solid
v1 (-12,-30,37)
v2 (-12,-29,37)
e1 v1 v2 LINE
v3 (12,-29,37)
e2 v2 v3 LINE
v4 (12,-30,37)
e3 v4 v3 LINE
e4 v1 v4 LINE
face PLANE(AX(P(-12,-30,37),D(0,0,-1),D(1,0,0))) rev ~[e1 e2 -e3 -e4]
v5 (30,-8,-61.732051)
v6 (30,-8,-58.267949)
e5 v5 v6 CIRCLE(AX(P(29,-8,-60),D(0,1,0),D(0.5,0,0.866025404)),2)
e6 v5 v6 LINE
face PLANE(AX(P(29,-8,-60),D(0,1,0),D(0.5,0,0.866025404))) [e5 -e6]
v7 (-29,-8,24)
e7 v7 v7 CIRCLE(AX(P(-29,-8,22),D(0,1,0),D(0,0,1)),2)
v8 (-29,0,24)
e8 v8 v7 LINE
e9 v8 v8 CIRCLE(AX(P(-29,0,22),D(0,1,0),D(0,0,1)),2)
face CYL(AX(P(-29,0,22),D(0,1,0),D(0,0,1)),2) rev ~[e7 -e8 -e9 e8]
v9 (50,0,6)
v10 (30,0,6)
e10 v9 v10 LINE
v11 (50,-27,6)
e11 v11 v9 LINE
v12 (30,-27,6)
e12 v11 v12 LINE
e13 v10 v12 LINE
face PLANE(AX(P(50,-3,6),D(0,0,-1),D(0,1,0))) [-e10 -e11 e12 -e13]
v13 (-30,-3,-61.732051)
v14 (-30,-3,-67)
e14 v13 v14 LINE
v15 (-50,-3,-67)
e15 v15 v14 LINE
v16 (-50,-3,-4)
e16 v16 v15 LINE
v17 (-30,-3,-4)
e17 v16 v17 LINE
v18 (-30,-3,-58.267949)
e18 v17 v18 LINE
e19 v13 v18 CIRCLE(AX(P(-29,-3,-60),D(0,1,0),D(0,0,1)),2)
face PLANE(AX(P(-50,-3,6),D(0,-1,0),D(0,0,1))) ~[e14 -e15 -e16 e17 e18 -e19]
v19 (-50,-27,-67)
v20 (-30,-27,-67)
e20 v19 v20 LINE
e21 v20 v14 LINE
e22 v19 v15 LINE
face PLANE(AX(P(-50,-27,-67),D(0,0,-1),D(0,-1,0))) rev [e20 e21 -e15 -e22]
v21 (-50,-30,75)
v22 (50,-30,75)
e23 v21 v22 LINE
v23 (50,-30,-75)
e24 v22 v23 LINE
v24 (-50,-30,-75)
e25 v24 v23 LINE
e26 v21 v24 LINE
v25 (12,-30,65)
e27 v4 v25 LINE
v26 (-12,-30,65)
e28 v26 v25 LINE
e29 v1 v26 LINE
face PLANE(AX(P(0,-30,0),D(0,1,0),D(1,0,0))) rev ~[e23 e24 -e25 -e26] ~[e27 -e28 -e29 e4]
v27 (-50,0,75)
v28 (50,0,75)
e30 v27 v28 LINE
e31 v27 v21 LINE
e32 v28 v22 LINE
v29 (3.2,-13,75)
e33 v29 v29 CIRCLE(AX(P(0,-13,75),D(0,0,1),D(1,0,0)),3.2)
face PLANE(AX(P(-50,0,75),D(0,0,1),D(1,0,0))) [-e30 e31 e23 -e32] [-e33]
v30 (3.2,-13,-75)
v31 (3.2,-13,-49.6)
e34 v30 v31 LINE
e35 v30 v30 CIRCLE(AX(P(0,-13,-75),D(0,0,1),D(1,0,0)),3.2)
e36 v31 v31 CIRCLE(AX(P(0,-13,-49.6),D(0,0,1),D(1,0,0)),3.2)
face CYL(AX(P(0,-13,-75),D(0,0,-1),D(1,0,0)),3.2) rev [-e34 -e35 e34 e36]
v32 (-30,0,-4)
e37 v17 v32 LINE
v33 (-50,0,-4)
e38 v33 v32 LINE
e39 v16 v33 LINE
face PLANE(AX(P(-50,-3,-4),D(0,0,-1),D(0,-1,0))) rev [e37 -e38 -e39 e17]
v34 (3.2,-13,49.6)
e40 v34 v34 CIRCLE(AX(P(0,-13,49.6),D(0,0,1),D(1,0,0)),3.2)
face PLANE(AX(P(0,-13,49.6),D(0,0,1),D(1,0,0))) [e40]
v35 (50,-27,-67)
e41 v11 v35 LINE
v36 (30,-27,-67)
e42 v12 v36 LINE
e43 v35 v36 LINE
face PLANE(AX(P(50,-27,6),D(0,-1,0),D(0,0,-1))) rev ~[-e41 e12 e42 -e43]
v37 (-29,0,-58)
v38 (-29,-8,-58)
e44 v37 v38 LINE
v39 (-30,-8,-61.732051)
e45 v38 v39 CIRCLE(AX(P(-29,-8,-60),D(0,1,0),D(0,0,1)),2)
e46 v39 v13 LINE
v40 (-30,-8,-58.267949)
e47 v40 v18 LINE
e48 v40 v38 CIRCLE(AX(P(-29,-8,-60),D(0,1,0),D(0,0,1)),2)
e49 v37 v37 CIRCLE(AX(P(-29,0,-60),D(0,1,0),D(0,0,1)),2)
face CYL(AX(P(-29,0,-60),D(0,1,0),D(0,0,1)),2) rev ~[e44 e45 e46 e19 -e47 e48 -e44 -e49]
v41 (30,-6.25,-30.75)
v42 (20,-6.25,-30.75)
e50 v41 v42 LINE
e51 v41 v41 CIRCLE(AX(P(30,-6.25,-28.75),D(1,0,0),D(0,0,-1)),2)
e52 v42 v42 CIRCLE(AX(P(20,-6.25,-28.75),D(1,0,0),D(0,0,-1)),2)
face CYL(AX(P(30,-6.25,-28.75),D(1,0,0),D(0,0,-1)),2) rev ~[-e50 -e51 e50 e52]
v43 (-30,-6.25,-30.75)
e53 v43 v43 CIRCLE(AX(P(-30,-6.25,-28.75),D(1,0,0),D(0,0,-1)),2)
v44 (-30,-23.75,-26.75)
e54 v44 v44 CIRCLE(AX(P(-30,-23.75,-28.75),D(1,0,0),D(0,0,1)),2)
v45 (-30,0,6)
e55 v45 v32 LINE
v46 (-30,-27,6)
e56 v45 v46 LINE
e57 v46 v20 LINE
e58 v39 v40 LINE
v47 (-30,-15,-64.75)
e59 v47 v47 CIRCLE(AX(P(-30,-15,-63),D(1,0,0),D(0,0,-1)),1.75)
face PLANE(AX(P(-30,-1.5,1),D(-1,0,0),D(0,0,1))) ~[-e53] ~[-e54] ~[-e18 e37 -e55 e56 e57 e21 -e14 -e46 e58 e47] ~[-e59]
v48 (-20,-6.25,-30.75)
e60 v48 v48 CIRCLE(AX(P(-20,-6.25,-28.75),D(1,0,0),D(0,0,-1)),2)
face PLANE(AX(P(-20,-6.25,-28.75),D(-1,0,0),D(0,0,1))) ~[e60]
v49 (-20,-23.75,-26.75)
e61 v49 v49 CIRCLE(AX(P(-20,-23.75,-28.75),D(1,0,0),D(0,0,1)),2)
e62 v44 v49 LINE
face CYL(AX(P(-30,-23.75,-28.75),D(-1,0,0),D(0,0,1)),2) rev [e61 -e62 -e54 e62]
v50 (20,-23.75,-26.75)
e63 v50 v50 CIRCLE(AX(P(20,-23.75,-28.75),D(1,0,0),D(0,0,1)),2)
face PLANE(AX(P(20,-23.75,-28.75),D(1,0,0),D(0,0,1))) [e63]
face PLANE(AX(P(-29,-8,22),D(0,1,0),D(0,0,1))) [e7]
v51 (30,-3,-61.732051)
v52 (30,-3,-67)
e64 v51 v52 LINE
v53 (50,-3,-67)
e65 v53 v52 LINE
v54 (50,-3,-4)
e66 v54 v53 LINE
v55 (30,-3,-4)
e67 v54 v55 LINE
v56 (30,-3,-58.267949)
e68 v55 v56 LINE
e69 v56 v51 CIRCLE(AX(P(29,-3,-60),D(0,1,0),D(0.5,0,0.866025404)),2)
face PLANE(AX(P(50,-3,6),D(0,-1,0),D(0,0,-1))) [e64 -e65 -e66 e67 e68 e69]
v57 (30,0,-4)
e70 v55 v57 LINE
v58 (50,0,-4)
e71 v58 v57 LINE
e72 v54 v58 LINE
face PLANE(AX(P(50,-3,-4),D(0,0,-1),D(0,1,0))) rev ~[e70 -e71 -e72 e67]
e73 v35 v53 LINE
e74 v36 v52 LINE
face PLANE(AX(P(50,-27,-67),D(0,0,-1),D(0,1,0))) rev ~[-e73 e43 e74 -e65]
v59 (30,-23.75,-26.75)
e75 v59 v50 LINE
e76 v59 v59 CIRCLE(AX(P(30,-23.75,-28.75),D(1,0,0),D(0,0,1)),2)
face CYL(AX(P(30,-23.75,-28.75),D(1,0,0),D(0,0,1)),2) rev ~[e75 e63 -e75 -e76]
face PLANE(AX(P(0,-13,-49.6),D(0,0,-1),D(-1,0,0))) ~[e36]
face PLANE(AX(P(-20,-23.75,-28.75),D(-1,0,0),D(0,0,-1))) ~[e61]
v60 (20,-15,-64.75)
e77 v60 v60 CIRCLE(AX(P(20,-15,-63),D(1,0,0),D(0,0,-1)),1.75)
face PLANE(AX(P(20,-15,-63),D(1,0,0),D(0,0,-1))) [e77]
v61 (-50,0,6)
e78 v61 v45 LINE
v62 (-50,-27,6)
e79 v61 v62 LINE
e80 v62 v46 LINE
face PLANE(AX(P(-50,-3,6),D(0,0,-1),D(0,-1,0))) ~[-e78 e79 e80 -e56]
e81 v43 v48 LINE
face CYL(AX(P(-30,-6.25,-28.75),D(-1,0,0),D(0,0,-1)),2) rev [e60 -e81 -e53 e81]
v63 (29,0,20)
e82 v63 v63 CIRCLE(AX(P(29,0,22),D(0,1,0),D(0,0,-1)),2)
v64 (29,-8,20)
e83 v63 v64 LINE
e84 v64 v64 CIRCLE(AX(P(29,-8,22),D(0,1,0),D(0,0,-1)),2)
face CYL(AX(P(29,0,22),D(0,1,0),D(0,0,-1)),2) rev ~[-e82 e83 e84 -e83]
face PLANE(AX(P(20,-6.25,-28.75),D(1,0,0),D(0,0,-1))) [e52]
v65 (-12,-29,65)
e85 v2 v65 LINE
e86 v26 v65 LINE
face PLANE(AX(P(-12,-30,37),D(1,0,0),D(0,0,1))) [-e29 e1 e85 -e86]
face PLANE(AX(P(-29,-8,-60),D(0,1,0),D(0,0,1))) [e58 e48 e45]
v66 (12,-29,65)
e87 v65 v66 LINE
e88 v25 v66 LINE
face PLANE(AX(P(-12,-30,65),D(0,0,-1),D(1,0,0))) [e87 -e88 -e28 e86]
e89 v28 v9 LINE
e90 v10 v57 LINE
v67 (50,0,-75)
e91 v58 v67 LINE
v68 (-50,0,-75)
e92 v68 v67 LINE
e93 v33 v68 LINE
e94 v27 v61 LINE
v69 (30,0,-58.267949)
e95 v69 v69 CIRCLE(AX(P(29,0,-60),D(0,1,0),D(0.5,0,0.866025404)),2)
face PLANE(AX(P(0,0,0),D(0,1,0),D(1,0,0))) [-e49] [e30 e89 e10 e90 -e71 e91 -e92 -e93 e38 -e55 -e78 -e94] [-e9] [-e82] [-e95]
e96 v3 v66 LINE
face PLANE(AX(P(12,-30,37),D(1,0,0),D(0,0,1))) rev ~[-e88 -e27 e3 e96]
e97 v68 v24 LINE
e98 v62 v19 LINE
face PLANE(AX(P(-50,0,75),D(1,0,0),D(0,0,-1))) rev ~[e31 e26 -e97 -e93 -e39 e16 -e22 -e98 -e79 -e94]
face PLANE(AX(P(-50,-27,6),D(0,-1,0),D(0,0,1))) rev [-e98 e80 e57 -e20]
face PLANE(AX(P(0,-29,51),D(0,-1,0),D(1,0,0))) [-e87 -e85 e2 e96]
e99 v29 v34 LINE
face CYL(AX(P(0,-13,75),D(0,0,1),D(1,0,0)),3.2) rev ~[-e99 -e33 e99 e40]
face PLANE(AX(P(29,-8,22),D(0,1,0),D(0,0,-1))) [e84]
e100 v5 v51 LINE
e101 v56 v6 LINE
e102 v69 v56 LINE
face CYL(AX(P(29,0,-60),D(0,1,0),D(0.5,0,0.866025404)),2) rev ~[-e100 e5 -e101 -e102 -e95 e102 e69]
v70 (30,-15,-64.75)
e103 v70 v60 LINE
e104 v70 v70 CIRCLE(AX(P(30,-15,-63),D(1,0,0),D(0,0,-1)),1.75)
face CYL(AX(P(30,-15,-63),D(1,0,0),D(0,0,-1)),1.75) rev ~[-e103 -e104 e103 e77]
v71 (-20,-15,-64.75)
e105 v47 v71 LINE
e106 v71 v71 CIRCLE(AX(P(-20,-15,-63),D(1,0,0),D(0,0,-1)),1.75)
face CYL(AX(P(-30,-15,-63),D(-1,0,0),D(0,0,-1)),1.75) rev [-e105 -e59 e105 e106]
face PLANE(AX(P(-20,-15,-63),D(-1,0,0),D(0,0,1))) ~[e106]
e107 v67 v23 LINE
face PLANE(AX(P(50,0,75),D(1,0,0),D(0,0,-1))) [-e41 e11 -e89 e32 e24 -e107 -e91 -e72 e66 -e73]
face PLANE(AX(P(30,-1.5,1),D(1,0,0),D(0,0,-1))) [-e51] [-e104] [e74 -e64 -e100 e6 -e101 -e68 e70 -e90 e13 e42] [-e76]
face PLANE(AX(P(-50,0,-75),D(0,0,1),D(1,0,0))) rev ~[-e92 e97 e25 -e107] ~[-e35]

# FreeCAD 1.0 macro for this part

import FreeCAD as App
import Part
import Sketcher
Q = App.Units.Quantity

doc = App.newDocument("Part")
body = doc.addObject("PartDesign::Body", "Body")

sketch1 = body.newObject("Sketcher::SketchObject", "Sketch")
sketch1.AttachmentSupport = (doc.getObject("XZ_Plane"), [""])
sketch1.MapMode = "FlatFace"
sketch1.addGeometry([
    Part.LineSegment(App.Vector(-50, -75, 0), App.Vector(-50, 75, 0)),
    Part.LineSegment(App.Vector(-50, 75, 0), App.Vector(50, 75, 0)),
    Part.LineSegment(App.Vector(50, 75, 0), App.Vector(50, -75, 0)),
    Part.LineSegment(App.Vector(50, -75, 0), App.Vector(-50, -75, 0)),
], False)
sketch1.addConstraint([
    Sketcher.Constraint("Coincident", 0, 2, 1, 1),
    Sketcher.Constraint("Coincident", 1, 2, 2, 1),
    Sketcher.Constraint("Coincident", 2, 2, 3, 1),
    Sketcher.Constraint("Coincident", 3, 2, 0, 1),
    Sketcher.Constraint("Vertical", 0),
    Sketcher.Constraint("Horizontal", 1),
    Sketcher.Constraint("Vertical", 2),
    Sketcher.Constraint("Horizontal", 3),
    Sketcher.Constraint("Symmetric", 0, 2, 2, 2, -1, 1),
    Sketcher.Constraint("DistanceX", 1, 1, 1, 2, Q("100 mm")),
    Sketcher.Constraint("DistanceY", 0, 1, 0, 2, Q("150 mm")),
])
pad1 = body.newObject("PartDesign::Pad", "Pad")
pad1.Profile = sketch1
pad1.Length = 30

sketch2 = body.newObject("Sketcher::SketchObject", "Sketch001")
sketch2.AttachmentSupport = (doc.getObject("YZ_Plane"), [""])
sketch2.MapMode = "FlatFace"
sketch2.AttachmentOffset = App.Placement(App.Vector(0, 0, 50), App.Rotation())
sketch2.addGeometry([
    Part.LineSegment(App.Vector(-3, 6, 0), App.Vector(-27, 6, 0)),
    Part.LineSegment(App.Vector(-27, 6, 0), App.Vector(-27, -67, 0)),
    Part.LineSegment(App.Vector(-27, -67, 0), App.Vector(-3, -67, 0)),
    Part.LineSegment(App.Vector(-3, -67, 0), App.Vector(-3, 6, 0)),
], False)
sketch2.addConstraint([
    Sketcher.Constraint("Coincident", 0, 2, 1, 1),
    Sketcher.Constraint("Coincident", 1, 2, 2, 1),
    Sketcher.Constraint("Coincident", 2, 2, 3, 1),
    Sketcher.Constraint("Coincident", 3, 2, 0, 1),
    Sketcher.Constraint("Horizontal", 0),
    Sketcher.Constraint("Vertical", 1),
    Sketcher.Constraint("Horizontal", 2),
    Sketcher.Constraint("Vertical", 3),
    Sketcher.Constraint("DistanceX", 0, 2, 0, 1, Q("24 mm")),
    Sketcher.Constraint("DistanceY", 1, 2, 1, 1, Q("73 mm")),
    Sketcher.Constraint("DistanceX", 0, 2, -1, 1, Q("27 mm")),
    Sketcher.Constraint("DistanceY", -1, 1, 0, 2, Q("6 mm")),
])
pocket1 = body.newObject("PartDesign::Pocket", "Pocket")
pocket1.Profile = sketch2
pocket1.Length = 20

sketch3 = body.newObject("Sketcher::SketchObject", "Sketch002")
sketch3.AttachmentSupport = (doc.getObject("YZ_Plane"), [""])
sketch3.MapMode = "FlatFace"
sketch3.AttachmentOffset = App.Placement(App.Vector(0, 0, 50), App.Rotation())
sketch3.addGeometry([
    Part.LineSegment(App.Vector(0, 6, 0), App.Vector(-3, 6, 0)),
    Part.LineSegment(App.Vector(-3, 6, 0), App.Vector(-3, -4, 0)),
    Part.LineSegment(App.Vector(-3, -4, 0), App.Vector(0, -4, 0)),
    Part.LineSegment(App.Vector(0, -4, 0), App.Vector(0, 6, 0)),
], False)
sketch3.addConstraint([
    Sketcher.Constraint("Coincident", 0, 2, 1, 1),
    Sketcher.Constraint("Coincident", 1, 2, 2, 1),
    Sketcher.Constraint("Coincident", 2, 2, 3, 1),
    Sketcher.Constraint("Coincident", 3, 2, 0, 1),
    Sketcher.Constraint("Horizontal", 0),
    Sketcher.Constraint("Vertical", 1),
    Sketcher.Constraint("Horizontal", 2),
    Sketcher.Constraint("Vertical", 3),
    Sketcher.Constraint("PointOnObject", 2, 2, -2),
    Sketcher.Constraint("DistanceX", 0, 2, 0, 1, Q("3 mm")),
    Sketcher.Constraint("DistanceY", 1, 2, 1, 1, Q("10 mm")),
    Sketcher.Constraint("DistanceY", -1, 1, 0, 2, Q("6 mm")),
])
pocket2 = body.newObject("PartDesign::Pocket", "Pocket001")
pocket2.Profile = sketch3
pocket2.Length = 20

sketch4 = body.newObject("Sketcher::SketchObject", "Sketch003")
sketch4.AttachmentSupport = (doc.getObject("YZ_Plane"), [""])
sketch4.MapMode = "FlatFace"
sketch4.AttachmentOffset = App.Placement(App.Vector(0, 0, 30), App.Rotation())
sketch4.addGeometry([
    Part.Circle(App.Vector(-15, -63, 0), App.Vector(0, 0, 1), 1.8),
    Part.Circle(App.Vector(-6.2, -28.8, 0), App.Vector(0, 0, 1), 2),
    Part.Circle(App.Vector(-23.8, -28.8, 0), App.Vector(0, 0, 1), 2),
], False)
sketch4.addConstraint([
    Sketcher.Constraint("Equal", 1, 2),
    Sketcher.Constraint("Horizontal", 1, 3, 2, 3),
    Sketcher.Constraint("Diameter", 1, Q("4 mm")),
    Sketcher.Constraint("Diameter", 0, Q("3.5 mm")),
    Sketcher.Constraint("DistanceX", 0, 3, -1, 1, Q("15 mm")),
    Sketcher.Constraint("DistanceY", 0, 3, -1, 1, Q("63 mm")),
    Sketcher.Constraint("DistanceX", 2, 3, 1, 3, Q("17.5 mm")),
    Sketcher.Constraint("DistanceX", 1, 3, -1, 1, Q("6.25 mm")),
    Sketcher.Constraint("DistanceY", 1, 3, -1, 1, Q("28.75 mm")),
])
pocket3 = body.newObject("PartDesign::Pocket", "Pocket002")
pocket3.Profile = sketch4
pocket3.Length = 10
doc.recompute()

mirrored = body.newObject("PartDesign::Mirrored", "Mirrored")
mirrored.Originals = [pocket1, pocket2, pocket3]
mirrored.MirrorPlane = (doc.getObject("YZ_Plane"), [""])
body.Tip = mirrored

sketch5 = body.newObject("Sketcher::SketchObject", "Sketch004")
sketch5.AttachmentSupport = (doc.getObject("XZ_Plane"), [""])
sketch5.MapMode = "FlatFace"
sketch5.addGeometry([
    Part.Circle(App.Vector(-29, -60, 0), App.Vector(0, 0, 1), 2),
    Part.Circle(App.Vector(-29, 22, 0), App.Vector(0, 0, 1), 2),
    Part.Circle(App.Vector(29, -60, 0), App.Vector(0, 0, 1), 2),
    Part.Circle(App.Vector(29, 22, 0), App.Vector(0, 0, 1), 2),
], False)
sketch5.addConstraint([
    Sketcher.Constraint("Equal", 0, 1),
    Sketcher.Constraint("Equal", 1, 2),
    Sketcher.Constraint("Equal", 2, 3),
    Sketcher.Constraint("Symmetric", 0, 3, 2, 3, -2),
    Sketcher.Constraint("Symmetric", 1, 3, 3, 3, -2),
    Sketcher.Constraint("Vertical", 0, 3, 1, 3),
    Sketcher.Constraint("Diameter", 0, Q("4 mm")),
    Sketcher.Constraint("DistanceX", 0, 3, -1, 1, Q("29 mm")),
    Sketcher.Constraint("DistanceY", 0, 3, -1, 1, Q("60 mm")),
    Sketcher.Constraint("DistanceY", -1, 1, 1, 3, Q("22 mm")),
])
pocket4 = body.newObject("PartDesign::Pocket", "Pocket003")
pocket4.Profile = sketch5
pocket4.Length = 8
pocket4.Reversed = True

sketch6 = body.newObject("Sketcher::SketchObject", "Sketch005")
sketch6.AttachmentSupport = (doc.getObject("XZ_Plane"), [""])
sketch6.MapMode = "FlatFace"
sketch6.AttachmentOffset = App.Placement(App.Vector(0, 0, 30), App.Rotation())
sketch6.addGeometry([
    Part.LineSegment(App.Vector(-12, 65, 0), App.Vector(-12, 37, 0)),
    Part.LineSegment(App.Vector(-12, 37, 0), App.Vector(12, 37, 0)),
    Part.LineSegment(App.Vector(12, 37, 0), App.Vector(12, 65, 0)),
    Part.LineSegment(App.Vector(12, 65, 0), App.Vector(-12, 65, 0)),
], False)
sketch6.addConstraint([
    Sketcher.Constraint("Coincident", 0, 2, 1, 1),
    Sketcher.Constraint("Coincident", 1, 2, 2, 1),
    Sketcher.Constraint("Coincident", 2, 2, 3, 1),
    Sketcher.Constraint("Coincident", 3, 2, 0, 1),
    Sketcher.Constraint("Vertical", 0),
    Sketcher.Constraint("Horizontal", 1),
    Sketcher.Constraint("Vertical", 2),
    Sketcher.Constraint("Horizontal", 3),
    Sketcher.Constraint("DistanceX", 1, 1, 1, 2, Q("24 mm")),
    Sketcher.Constraint("DistanceY", 0, 2, 0, 1, Q("28 mm")),
    Sketcher.Constraint("DistanceX", 0, 2, -1, 1, Q("12 mm")),
    Sketcher.Constraint("DistanceY", -1, 1, 0, 2, Q("37 mm")),
])
pocket5 = body.newObject("PartDesign::Pocket", "Pocket004")
pocket5.Profile = sketch6
pocket5.Length = 1

sketch7 = body.newObject("Sketcher::SketchObject", "Sketch006")
sketch7.AttachmentSupport = (doc.getObject("XY_Plane"), [""])
sketch7.MapMode = "FlatFace"
sketch7.AttachmentOffset = App.Placement(App.Vector(0, 0, 75), App.Rotation())
sketch7.addGeometry(Part.Circle(App.Vector(0, -13, 0), App.Vector(0, 0, 1), 3.2), False)
sketch7.addConstraint([
    Sketcher.Constraint("PointOnObject", 0, 3, -2),
    Sketcher.Constraint("Diameter", 0, Q("6.4 mm")),
    Sketcher.Constraint("DistanceY", 0, 3, -1, 1, Q("13 mm")),
])
pocket6 = body.newObject("PartDesign::Pocket", "Pocket005")
pocket6.Profile = sketch7
pocket6.Length = 25.4
doc.recompute()

mirrored2 = body.newObject("PartDesign::Mirrored", "Mirrored001")
mirrored2.Originals = [pocket6]
mirrored2.MirrorPlane = (doc.getObject("XY_Plane"), [""])
body.Tip = mirrored2

doc.recompute()
